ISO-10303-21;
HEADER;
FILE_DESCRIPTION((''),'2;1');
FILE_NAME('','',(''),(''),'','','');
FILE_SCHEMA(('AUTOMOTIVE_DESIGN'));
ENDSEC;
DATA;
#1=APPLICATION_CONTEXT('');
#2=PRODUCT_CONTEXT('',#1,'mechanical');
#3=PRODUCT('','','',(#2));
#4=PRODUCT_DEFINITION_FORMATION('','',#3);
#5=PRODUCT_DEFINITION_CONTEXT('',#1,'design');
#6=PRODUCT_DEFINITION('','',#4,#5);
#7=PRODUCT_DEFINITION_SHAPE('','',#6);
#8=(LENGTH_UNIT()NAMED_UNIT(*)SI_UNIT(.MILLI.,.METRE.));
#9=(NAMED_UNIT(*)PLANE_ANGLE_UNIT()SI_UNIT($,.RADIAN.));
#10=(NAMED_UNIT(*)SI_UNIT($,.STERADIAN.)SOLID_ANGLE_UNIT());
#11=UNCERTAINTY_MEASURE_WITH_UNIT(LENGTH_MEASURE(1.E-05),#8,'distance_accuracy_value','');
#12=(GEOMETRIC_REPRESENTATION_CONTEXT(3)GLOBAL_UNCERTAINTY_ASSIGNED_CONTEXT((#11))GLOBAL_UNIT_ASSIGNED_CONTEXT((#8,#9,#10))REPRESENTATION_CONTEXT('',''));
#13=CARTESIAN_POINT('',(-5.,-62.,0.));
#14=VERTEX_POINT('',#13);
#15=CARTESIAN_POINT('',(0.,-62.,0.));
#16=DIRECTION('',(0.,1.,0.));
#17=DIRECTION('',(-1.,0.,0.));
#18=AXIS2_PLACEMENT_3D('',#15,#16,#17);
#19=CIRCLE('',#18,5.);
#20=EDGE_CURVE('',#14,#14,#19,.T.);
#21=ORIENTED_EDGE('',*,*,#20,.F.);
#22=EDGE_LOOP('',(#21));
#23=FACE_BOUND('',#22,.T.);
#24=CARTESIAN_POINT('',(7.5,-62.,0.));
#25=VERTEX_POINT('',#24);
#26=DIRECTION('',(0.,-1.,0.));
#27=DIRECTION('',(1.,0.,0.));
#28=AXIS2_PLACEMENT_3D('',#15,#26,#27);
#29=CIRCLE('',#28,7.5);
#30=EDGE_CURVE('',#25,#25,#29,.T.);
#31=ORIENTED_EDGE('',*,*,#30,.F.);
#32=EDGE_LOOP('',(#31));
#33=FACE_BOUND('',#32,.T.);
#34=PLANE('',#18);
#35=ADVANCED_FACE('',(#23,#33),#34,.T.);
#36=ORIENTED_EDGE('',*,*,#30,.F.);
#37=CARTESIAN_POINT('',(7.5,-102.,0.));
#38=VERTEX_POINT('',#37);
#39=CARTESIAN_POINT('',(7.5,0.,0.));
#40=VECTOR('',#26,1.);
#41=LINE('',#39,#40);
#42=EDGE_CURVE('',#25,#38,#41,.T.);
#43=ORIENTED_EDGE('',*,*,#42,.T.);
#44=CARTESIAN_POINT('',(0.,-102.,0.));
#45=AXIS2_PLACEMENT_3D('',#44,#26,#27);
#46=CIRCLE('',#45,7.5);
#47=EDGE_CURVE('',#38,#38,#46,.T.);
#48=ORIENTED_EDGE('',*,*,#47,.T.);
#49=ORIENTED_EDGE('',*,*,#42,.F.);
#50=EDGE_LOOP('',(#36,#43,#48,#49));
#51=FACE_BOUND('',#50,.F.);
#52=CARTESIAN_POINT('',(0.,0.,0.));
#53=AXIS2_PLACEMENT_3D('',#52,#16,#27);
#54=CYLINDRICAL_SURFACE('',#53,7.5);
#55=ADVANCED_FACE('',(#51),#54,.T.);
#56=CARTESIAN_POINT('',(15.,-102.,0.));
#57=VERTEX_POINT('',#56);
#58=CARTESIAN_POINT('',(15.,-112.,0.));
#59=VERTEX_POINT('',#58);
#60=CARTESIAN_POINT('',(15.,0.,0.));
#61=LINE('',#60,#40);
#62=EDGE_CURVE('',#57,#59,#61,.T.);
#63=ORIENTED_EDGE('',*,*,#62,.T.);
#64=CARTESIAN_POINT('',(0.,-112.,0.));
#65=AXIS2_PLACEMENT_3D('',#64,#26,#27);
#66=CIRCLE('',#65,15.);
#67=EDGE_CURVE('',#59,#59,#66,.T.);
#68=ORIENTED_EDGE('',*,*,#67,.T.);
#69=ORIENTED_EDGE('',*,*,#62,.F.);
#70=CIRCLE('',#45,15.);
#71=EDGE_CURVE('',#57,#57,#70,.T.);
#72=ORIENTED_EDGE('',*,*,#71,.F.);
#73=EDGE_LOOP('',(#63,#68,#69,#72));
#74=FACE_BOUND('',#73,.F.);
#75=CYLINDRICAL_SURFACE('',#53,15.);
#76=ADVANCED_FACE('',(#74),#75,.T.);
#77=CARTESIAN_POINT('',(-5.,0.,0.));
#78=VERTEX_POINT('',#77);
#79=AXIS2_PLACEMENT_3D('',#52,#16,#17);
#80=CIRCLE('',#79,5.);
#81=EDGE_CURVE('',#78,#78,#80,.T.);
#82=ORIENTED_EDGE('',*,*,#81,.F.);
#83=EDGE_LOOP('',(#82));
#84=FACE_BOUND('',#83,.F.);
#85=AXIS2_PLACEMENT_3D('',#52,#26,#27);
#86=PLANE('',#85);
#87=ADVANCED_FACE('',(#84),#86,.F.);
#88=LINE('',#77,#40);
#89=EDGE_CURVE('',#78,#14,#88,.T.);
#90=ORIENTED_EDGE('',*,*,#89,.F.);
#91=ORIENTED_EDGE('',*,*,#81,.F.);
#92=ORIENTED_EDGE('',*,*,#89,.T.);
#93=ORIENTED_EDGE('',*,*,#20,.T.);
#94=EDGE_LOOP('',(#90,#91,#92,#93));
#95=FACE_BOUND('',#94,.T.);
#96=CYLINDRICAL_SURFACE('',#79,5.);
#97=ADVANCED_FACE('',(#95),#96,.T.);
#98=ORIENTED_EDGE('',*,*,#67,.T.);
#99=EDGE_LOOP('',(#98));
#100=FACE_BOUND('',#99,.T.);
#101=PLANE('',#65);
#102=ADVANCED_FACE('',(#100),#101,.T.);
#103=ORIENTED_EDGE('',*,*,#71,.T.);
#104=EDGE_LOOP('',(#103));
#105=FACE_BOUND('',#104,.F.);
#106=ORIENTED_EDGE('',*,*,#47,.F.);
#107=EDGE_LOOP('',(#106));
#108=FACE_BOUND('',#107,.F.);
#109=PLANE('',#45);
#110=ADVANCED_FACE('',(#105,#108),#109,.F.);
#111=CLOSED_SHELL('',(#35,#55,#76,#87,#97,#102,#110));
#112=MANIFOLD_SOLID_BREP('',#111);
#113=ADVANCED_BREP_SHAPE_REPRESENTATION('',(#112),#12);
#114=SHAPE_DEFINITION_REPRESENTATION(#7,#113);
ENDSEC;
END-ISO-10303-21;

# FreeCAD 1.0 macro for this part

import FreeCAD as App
import Part
import Sketcher

doc = App.newDocument("Part")
body = doc.addObject("PartDesign::Body", "Body")

# Sketch on XZ plane
sketch1 = body.newObject("Sketcher::SketchObject", "Sketch")
sketch1.AttachmentSupport = (doc.getObject("XZ_Plane"), [""])
sketch1.MapMode = "FlatFace"
sketch1.addGeometry(Part.Circle(App.Vector(0, 0, 0), App.Vector(0, 0, 1), 15), False)
sketch1.addConstraint(Sketcher.Constraint("Coincident", 0, 3, -1, 1))
sketch1.addConstraint(Sketcher.Constraint("Diameter", 0, 30.0))
pad1 = body.newObject("PartDesign::Pad", "Pad")
pad1.Profile = sketch1
pad1.Length = 112

# Sketch on XZ plane
sketch2 = body.newObject("Sketcher::SketchObject", "Sketch001")
sketch2.AttachmentSupport = (doc.getObject("XZ_Plane"), [""])
sketch2.MapMode = "FlatFace"
sketch2.addGeometry(Part.Circle(App.Vector(0, 0, 0), App.Vector(0, 0, 1), 15), False)
sketch2.addGeometry(Part.Circle(App.Vector(0, 0, 0), App.Vector(0, 0, 1), 8), False)
sketch2.addConstraint(Sketcher.Constraint("Coincident", 0, 3, -1, 1))
sketch2.addConstraint(Sketcher.Constraint("Coincident", 1, 3, -1, 1))
sketch2.addConstraint(Sketcher.Constraint("Diameter", 0, 30.0))
sketch2.addConstraint(Sketcher.Constraint("Diameter", 1, 15.0))
pocket1 = body.newObject("PartDesign::Pocket", "Pocket")
pocket1.Profile = sketch2
pocket1.Length = 102
pocket1.Reversed = True

# Sketch on XZ plane
sketch3 = body.newObject("Sketcher::SketchObject", "Sketch002")
sketch3.AttachmentSupport = (doc.getObject("XZ_Plane"), [""])
sketch3.MapMode = "FlatFace"
sketch3.addGeometry(Part.Circle(App.Vector(0, 0, 0), App.Vector(0, 0, 1), 8), False)
sketch3.addGeometry(Part.Circle(App.Vector(0, 0, 0), App.Vector(0, 0, 1), 5), False)
sketch3.addConstraint(Sketcher.Constraint("Coincident", 0, 3, -1, 1))
sketch3.addConstraint(Sketcher.Constraint("Coincident", 1, 3, -1, 1))
sketch3.addConstraint(Sketcher.Constraint("Diameter", 0, 15.0))
sketch3.addConstraint(Sketcher.Constraint("Diameter", 1, 10.0))
pocket2 = body.newObject("PartDesign::Pocket", "Pocket001")
pocket2.Profile = sketch3
pocket2.Length = 62
pocket2.Reversed = True

doc.recompute()
